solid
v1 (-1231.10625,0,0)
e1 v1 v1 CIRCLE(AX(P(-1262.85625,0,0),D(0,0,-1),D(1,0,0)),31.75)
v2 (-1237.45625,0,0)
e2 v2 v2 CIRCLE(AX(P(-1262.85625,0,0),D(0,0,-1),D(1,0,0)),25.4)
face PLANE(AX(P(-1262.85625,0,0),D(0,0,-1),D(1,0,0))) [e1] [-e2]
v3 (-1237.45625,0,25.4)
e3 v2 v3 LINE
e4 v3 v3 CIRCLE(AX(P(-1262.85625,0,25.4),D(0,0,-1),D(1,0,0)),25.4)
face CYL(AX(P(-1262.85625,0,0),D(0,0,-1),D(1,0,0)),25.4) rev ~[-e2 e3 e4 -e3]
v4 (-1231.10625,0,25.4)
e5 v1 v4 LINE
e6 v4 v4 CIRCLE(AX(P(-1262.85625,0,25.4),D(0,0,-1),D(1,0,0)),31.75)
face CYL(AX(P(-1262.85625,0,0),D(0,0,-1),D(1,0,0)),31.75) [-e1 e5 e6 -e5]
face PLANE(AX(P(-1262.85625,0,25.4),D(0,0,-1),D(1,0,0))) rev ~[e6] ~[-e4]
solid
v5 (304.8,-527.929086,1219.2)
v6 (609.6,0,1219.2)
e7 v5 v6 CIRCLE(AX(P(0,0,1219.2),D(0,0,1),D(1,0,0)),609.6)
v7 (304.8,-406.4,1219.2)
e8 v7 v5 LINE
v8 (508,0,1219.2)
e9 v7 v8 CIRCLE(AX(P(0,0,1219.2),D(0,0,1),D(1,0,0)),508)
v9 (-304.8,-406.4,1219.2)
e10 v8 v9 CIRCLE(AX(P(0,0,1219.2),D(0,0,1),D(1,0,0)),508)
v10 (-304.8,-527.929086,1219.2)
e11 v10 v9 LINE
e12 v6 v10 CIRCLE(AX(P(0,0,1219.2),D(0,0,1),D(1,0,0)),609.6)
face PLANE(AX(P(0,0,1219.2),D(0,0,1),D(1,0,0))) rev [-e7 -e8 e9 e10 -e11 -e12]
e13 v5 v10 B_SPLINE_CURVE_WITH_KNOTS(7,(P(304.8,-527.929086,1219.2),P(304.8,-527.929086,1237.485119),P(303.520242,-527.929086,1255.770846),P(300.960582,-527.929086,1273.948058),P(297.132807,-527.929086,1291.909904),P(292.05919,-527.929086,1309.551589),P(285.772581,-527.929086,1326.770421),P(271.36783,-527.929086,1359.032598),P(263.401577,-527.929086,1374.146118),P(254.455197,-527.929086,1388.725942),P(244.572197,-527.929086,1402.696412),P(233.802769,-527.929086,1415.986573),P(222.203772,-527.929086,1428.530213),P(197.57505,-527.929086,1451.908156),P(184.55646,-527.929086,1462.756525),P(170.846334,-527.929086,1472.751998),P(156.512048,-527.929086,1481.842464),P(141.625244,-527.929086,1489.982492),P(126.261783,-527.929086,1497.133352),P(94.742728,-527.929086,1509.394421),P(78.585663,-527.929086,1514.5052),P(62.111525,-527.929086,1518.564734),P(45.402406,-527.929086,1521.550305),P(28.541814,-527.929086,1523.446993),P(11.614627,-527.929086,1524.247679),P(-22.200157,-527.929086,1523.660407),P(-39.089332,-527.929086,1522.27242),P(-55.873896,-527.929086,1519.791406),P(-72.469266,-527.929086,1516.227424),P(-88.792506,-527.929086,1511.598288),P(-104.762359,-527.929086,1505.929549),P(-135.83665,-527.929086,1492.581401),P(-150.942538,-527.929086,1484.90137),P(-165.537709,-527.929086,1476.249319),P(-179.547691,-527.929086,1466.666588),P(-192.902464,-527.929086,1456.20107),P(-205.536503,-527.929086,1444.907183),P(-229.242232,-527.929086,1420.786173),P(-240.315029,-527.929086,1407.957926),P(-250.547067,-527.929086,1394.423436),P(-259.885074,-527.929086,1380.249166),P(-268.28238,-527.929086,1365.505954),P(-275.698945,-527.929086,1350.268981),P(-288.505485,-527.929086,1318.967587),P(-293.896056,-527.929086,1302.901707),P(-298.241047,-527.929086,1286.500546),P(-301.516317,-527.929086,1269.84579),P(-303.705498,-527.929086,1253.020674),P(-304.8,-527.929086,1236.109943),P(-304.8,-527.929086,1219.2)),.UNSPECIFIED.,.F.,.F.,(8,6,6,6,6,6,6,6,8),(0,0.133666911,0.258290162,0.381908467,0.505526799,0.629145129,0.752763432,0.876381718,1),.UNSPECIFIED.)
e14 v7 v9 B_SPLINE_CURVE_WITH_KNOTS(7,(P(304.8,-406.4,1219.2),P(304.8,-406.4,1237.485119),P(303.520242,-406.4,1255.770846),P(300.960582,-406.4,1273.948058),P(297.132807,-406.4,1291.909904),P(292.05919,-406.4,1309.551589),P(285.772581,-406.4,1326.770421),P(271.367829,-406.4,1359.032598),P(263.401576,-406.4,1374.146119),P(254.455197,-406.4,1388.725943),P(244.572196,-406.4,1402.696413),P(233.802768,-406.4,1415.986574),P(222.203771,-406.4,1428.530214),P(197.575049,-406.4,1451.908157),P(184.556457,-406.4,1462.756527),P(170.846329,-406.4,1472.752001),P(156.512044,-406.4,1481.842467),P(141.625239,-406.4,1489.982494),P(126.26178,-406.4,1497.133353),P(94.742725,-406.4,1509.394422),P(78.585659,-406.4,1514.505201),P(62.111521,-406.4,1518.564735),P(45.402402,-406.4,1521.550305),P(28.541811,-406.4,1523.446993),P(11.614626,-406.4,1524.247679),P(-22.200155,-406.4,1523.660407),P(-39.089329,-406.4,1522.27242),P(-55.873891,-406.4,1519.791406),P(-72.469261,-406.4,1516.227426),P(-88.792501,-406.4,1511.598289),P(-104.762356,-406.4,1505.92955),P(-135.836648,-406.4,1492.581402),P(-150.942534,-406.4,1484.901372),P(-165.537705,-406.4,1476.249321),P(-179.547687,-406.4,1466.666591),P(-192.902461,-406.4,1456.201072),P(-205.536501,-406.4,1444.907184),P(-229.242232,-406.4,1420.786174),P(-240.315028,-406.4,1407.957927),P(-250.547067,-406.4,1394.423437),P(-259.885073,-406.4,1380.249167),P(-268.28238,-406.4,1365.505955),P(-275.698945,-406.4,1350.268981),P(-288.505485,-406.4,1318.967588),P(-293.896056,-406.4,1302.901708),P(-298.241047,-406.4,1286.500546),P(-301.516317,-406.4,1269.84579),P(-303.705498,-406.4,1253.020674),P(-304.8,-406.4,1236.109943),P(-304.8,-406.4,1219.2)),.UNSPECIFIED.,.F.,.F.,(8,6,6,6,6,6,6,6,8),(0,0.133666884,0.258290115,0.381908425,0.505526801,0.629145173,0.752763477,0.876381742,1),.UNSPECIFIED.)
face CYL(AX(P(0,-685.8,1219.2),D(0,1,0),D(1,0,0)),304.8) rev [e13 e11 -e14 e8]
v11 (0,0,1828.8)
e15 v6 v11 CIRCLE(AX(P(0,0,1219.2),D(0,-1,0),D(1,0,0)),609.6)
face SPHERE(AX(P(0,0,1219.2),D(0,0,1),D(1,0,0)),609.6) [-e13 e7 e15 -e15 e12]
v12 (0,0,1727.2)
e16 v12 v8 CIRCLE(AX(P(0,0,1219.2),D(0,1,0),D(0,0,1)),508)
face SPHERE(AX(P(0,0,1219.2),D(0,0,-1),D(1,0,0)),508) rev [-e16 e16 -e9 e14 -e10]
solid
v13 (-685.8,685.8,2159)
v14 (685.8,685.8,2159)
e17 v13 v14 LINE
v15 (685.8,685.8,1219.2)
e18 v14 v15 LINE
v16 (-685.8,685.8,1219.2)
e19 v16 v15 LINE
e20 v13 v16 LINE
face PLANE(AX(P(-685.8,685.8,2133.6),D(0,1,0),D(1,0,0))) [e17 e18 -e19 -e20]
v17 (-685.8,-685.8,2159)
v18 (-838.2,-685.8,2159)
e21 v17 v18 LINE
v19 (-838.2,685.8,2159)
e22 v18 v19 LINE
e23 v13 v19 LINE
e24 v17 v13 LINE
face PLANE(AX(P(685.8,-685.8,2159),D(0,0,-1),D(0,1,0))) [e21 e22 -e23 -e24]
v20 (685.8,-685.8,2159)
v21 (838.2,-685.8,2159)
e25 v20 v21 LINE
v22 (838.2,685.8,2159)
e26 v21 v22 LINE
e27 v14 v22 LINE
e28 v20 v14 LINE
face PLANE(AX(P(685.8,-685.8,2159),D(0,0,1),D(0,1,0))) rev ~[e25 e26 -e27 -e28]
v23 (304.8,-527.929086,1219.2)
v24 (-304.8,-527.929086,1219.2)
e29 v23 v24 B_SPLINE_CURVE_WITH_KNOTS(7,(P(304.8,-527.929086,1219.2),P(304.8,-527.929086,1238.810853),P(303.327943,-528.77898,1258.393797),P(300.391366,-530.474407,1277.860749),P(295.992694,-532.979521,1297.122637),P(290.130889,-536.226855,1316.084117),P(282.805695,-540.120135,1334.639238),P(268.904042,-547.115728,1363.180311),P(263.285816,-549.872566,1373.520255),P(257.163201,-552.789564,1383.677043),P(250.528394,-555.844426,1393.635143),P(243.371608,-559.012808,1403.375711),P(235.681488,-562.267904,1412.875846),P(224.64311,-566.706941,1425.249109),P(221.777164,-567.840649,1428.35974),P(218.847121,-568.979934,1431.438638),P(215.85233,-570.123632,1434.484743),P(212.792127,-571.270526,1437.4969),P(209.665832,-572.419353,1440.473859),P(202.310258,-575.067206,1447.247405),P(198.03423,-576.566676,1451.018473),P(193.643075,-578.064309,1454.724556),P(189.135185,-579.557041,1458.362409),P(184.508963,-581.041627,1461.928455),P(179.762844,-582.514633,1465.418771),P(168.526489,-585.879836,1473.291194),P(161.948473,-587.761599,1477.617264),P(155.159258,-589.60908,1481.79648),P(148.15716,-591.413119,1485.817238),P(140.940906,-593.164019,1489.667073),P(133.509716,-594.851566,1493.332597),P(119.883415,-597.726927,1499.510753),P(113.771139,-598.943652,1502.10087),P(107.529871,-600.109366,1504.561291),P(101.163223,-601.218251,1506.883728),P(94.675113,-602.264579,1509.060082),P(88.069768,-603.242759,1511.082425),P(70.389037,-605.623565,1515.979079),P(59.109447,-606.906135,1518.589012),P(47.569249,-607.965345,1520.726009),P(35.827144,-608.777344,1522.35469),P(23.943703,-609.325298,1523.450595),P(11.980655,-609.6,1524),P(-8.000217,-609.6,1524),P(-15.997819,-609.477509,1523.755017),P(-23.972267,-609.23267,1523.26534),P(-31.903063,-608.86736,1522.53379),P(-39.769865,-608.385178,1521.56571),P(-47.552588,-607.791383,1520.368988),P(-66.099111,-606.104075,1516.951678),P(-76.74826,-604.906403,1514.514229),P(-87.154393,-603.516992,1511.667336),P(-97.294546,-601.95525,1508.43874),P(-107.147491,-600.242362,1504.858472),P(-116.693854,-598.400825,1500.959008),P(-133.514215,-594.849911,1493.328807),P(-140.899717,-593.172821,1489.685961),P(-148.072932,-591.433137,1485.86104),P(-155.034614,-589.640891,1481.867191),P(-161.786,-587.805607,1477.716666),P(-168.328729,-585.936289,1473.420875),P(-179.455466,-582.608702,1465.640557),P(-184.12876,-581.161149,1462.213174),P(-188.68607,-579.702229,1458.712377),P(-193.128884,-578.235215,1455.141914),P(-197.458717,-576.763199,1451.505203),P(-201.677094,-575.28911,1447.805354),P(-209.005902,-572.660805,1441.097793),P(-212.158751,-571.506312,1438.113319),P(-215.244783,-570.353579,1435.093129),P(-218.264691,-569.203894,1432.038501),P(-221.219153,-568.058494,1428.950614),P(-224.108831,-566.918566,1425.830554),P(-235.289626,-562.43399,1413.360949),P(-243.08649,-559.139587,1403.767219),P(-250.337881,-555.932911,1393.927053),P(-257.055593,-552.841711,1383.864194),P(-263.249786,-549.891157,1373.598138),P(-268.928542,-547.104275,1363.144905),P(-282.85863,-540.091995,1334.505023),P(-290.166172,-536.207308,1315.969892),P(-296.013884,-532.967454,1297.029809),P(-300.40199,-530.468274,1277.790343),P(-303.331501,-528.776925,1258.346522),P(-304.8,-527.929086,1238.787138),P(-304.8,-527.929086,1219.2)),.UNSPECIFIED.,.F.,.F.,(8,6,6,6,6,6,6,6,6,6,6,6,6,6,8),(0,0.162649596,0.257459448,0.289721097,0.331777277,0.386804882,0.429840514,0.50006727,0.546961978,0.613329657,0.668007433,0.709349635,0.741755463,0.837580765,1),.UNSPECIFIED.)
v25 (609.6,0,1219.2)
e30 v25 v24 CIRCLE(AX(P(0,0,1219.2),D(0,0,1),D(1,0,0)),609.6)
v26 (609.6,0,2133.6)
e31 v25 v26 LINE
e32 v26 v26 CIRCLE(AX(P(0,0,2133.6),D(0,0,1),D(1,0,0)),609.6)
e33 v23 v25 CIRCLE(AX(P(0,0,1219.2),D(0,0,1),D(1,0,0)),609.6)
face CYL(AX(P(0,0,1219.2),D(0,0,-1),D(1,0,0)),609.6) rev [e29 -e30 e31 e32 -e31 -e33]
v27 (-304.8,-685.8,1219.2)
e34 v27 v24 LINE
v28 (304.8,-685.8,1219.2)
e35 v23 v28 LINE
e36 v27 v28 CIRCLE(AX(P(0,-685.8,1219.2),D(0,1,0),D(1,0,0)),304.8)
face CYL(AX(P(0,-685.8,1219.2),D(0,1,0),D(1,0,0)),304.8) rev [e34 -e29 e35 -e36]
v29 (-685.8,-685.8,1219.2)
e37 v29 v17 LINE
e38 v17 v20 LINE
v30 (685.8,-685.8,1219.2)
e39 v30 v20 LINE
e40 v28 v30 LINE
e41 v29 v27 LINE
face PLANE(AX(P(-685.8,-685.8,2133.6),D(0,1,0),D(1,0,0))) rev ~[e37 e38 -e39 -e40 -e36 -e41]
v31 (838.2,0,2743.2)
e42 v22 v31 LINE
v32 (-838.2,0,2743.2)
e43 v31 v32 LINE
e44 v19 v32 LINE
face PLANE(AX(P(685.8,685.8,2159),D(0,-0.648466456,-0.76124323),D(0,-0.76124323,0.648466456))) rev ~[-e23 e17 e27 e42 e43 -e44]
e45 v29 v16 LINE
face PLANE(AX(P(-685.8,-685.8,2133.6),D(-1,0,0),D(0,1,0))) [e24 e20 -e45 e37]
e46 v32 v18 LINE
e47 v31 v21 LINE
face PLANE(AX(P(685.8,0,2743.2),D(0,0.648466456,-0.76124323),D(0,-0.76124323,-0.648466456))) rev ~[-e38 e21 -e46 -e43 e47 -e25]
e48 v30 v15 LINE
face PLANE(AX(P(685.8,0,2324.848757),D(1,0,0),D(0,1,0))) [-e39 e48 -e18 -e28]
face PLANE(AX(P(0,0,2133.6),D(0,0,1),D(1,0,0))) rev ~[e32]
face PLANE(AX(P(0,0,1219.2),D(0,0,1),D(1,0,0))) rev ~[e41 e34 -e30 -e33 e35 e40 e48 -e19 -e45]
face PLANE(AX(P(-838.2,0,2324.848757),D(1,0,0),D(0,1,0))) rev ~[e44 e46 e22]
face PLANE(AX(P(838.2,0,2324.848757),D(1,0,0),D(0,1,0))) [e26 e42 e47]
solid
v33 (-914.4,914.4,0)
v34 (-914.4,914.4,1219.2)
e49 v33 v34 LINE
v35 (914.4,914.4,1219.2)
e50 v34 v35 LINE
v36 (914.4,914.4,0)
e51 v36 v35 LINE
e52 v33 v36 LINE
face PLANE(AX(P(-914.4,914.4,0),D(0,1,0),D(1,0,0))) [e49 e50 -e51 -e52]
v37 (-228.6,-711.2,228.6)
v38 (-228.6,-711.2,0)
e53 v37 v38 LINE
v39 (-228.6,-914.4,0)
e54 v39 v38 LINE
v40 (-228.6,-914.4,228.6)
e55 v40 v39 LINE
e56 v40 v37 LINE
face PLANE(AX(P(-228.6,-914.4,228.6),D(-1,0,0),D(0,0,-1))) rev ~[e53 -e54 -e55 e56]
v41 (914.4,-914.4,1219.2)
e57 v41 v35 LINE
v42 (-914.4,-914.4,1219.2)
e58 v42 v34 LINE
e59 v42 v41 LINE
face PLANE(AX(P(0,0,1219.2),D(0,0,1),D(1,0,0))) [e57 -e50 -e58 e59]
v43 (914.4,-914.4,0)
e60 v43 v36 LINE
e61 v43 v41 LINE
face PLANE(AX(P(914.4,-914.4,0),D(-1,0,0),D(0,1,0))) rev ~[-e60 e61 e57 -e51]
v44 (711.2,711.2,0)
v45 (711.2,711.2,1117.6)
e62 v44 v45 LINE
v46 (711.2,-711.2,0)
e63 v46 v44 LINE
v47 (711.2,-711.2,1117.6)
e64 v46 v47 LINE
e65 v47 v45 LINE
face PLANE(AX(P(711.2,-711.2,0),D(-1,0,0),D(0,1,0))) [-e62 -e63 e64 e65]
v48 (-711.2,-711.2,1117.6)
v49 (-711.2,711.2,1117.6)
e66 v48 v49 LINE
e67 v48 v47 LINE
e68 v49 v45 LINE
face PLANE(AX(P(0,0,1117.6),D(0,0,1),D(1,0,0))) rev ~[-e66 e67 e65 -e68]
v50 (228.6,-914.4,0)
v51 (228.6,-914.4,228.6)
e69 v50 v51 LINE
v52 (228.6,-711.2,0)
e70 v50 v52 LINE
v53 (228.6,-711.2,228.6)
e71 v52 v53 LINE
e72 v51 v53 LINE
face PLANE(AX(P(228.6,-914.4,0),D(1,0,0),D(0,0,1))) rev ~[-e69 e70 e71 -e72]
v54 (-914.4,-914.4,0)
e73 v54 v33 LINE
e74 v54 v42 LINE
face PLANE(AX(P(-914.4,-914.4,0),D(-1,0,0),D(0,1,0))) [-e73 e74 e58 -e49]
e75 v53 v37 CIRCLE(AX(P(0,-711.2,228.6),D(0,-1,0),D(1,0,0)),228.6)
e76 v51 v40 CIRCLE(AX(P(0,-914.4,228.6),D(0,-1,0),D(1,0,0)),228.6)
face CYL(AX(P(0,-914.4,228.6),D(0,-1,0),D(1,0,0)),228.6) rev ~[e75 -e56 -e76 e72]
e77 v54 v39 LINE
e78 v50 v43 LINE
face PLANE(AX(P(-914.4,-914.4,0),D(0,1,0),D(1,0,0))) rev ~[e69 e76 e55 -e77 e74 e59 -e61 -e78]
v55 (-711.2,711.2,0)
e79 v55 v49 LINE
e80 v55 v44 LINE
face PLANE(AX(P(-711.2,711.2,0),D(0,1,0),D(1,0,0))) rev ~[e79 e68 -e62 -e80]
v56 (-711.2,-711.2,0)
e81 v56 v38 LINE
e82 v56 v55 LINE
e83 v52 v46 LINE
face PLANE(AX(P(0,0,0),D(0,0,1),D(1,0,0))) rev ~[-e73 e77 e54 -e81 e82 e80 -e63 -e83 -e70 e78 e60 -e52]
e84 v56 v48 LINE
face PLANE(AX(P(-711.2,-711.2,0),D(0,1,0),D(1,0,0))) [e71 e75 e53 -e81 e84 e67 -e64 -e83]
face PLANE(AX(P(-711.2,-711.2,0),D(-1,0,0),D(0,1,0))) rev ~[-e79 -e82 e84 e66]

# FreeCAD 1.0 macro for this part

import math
import FreeCAD as App
import Part
import Sketcher
from FreeCAD import Vector
Q = App.Units.Quantity


def add_polygon(sketch, points):
    """Adds a closed chain of lines whose ends are joined by coincident constraints."""
    first, n = sketch.GeometryCount, len(points)
    for a, b in zip(points, points[1:] + points[:1]):
        sketch.addGeometry(Part.LineSegment(App.Vector(*a, 0), App.Vector(*b, 0)), False)
    for i in range(n):
        sketch.addConstraint(Sketcher.Constraint("Coincident", first + i, 2, first + (i + 1) % n, 1))

doc = App.newDocument("Part")
body = doc.addObject("PartDesign::Body", "Body")

sketch1 = doc.addObject("Sketcher::SketchObject", "Sketch")
body.addObject(sketch1)
sketch1.AttachmentSupport = (doc.XY_Plane, [""])
sketch1.MapMode = "FlatFace"
add_polygon(sketch1, [(-914, 914), (-914, -914), (914, -914), (914, 914)])
add_polygon(sketch1, [(711, -711), (-711, -711), (-711, 711), (711, 711)])
sketch1.addConstraint([
    Sketcher.Constraint("Vertical", 0),
    Sketcher.Constraint("Horizontal", 1),
    Sketcher.Constraint("Vertical", 2),
    Sketcher.Constraint("Horizontal", 3),
    Sketcher.Constraint("Horizontal", 4),
    Sketcher.Constraint("Vertical", 5),
    Sketcher.Constraint("Horizontal", 6),
    Sketcher.Constraint("Vertical", 7),
    Sketcher.Constraint("Symmetric", 0, 2, 2, 2, -1, 1),
    Sketcher.Constraint("Symmetric", 4, 2, 6, 2, -1, 1),
    Sketcher.Constraint("Equal", 3, 0),
    Sketcher.Constraint("Equal", 6, 5),
    Sketcher.Constraint("DistanceX", 1, 1, 1, 2, Q("72 in")),
    Sketcher.Constraint("DistanceX", 4, 2, 4, 1, Q("56 in")),
])
pad1 = doc.addObject("PartDesign::Pad", "Pad")
body.addObject(pad1)
pad1.Profile = sketch1
pad1.Length = Q("48 in")

sketch2 = doc.addObject("Sketcher::SketchObject", "Sketch001")
body.addObject(sketch2)
sketch2.AttachmentSupport = (doc.XY_Plane, [""])
sketch2.MapMode = "FlatFace"
sketch2.AttachmentOffset = App.Placement(Vector(0, 0, 48 * 25.4), App.Rotation())
add_polygon(sketch2, [(-711, 711), (-711, -711), (711, -711), (711, 711)])
sketch2.addConstraint([
    Sketcher.Constraint("Vertical", 0),
    Sketcher.Constraint("Horizontal", 1),
    Sketcher.Constraint("Vertical", 2),
    Sketcher.Constraint("Horizontal", 3),
    Sketcher.Constraint("Symmetric", 0, 2, 2, 2, -1, 1),
    Sketcher.Constraint("Equal", 3, 0),
    Sketcher.Constraint("DistanceX", 1, 1, 1, 2, Q("56 in")),
])
pad2 = doc.addObject("PartDesign::Pad", "Pad001")
body.addObject(pad2)
pad2.Profile = sketch2
pad2.Length = Q("4 in")
pad2.Reversed = True

sketch3 = doc.addObject("Sketcher::SketchObject", "Sketch002")
body.addObject(sketch3)
sketch3.AttachmentSupport = (doc.XZ_Plane, [""])
sketch3.MapMode = "FlatFace"
sketch3.AttachmentOffset = App.Placement(Vector(0, 0, 36 * 25.4), App.Rotation())
sketch3.addGeometry([
    Part.LineSegment(Vector(229, 0, 0), Vector(229, 229, 0)),
    Part.ArcOfCircle(Part.Circle(Vector(0, 229, 0), Vector(0, 0, 1), 229), math.radians(0), math.radians(180)),
    Part.LineSegment(Vector(-229, 229, 0), Vector(-229, 0, 0)),
    Part.LineSegment(Vector(-229, 0, 0), Vector(229, 0, 0)),
], False)
sketch3.addConstraint([
    Sketcher.Constraint("Tangent", 0, 2, 1, 1),
    Sketcher.Constraint("Tangent", 1, 2, 2, 1),
    Sketcher.Constraint("Coincident", 2, 2, 3, 1),
    Sketcher.Constraint("Coincident", 3, 2, 0, 1),
    Sketcher.Constraint("Vertical", 0),
    Sketcher.Constraint("Vertical", 2),
    Sketcher.Constraint("Horizontal", 3),
    Sketcher.Constraint("Symmetric", 2, 2, 3, 2, -1, 1),
    Sketcher.Constraint("Radius", 1, Q("9 in")),
    Sketcher.Constraint("DistanceY", 0, 1, 0, 2, Q("9 in")),
])
pocket1 = doc.addObject("PartDesign::Pocket", "Pocket")
body.addObject(pocket1)
pocket1.Profile = sketch3
pocket1.Length = Q("8 in")
body2 = doc.addObject("PartDesign::Body", "Body001")

sketch4 = doc.addObject("Sketcher::SketchObject", "Sketch003")
body2.addObject(sketch4)
sketch4.AttachmentSupport = (doc.getObject("XZ_Plane001"), [""])
sketch4.MapMode = "FlatFace"
sketch4.addGeometry([
    Part.LineSegment(Vector(508, 1219, 0), Vector(610, 1219, 0)),
    Part.ArcOfCircle(Part.Circle(Vector(0, 1219, 0), Vector(0, 0, 1), 610), math.radians(0), math.radians(90)),
    Part.LineSegment(Vector(0, 1829, 0), Vector(0, 1727, 0)),
    Part.ArcOfCircle(Part.Circle(Vector(0, 1219, 0), Vector(0, 0, 1), 508), math.radians(0), math.radians(90)),
], False)
sketch4.addConstraint([
    Sketcher.Constraint("Coincident", 0, 2, 1, 1),
    Sketcher.Constraint("Coincident", 1, 2, 2, 1),
    Sketcher.Constraint("Coincident", 2, 2, 3, 2),
    Sketcher.Constraint("Coincident", 3, 1, 0, 1),
    Sketcher.Constraint("Horizontal", 0),
    Sketcher.Constraint("Vertical", 2),
    Sketcher.Constraint("Coincident", 3, 3, 1, 3),
    Sketcher.Constraint("PointOnObject", 1, 3, -2),
    Sketcher.Constraint("PointOnObject", 2, 2, -2),
    Sketcher.Constraint("Horizontal", 3, 3, 0, 2),
    Sketcher.Constraint("Radius", 1, Q("24 in")),
    Sketcher.Constraint("Radius", 3, Q("20 in")),
    Sketcher.Constraint("DistanceY", -1, 1, 1, 3, Q("48 in")),
])
revolution = doc.addObject("PartDesign::Revolution", "Revolution")
body2.addObject(revolution)
revolution.Profile = sketch4
revolution.ReferenceAxis = (sketch4, ["V_Axis"])
revolution.Angle = 360
body3 = doc.addObject("PartDesign::Body", "Body002")

sketch5 = doc.addObject("Sketcher::SketchObject", "Sketch004")
body3.addObject(sketch5)
sketch5.AttachmentSupport = (doc.getObject("XY_Plane002"), [""])
sketch5.MapMode = "FlatFace"
sketch5.AttachmentOffset = App.Placement(Vector(0, 0, 48 * 25.4), App.Rotation())
add_polygon(sketch5, [(-686, 686), (-686, -686), (686, -686), (686, 686)])
sketch5.addGeometry(Part.Circle(Vector(0, 0, 0), Vector(0, 0, 1), 610), False)
sketch5.addConstraint([
    Sketcher.Constraint("Vertical", 0),
    Sketcher.Constraint("Horizontal", 1),
    Sketcher.Constraint("Vertical", 2),
    Sketcher.Constraint("Horizontal", 3),
    Sketcher.Constraint("Coincident", 4, 3, -1, 1),
    Sketcher.Constraint("Symmetric", 0, 2, 2, 2, -1, 1),
    Sketcher.Constraint("Equal", 3, 0),
    Sketcher.Constraint("Diameter", 4, Q("48 in")),
    Sketcher.Constraint("DistanceX", 1, 1, 1, 2, Q("54 in")),
])
pad3 = doc.addObject("PartDesign::Pad", "Pad002")
body3.addObject(pad3)
pad3.Profile = sketch5
pad3.Length = Q("36 in")

sketch6 = doc.addObject("Sketcher::SketchObject", "Sketch005")
body3.addObject(sketch6)
sketch6.AttachmentSupport = (doc.getObject("XY_Plane002"), [""])
sketch6.MapMode = "FlatFace"
sketch6.AttachmentOffset = App.Placement(Vector(0, 0, 84 * 25.4), App.Rotation())
add_polygon(sketch6, [(-686, 686), (-686, -686), (686, -686), (686, 686)])
sketch6.addConstraint([
    Sketcher.Constraint("Vertical", 0),
    Sketcher.Constraint("Horizontal", 1),
    Sketcher.Constraint("Vertical", 2),
    Sketcher.Constraint("Horizontal", 3),
    Sketcher.Constraint("Symmetric", 0, 2, 2, 2, -1, 1),
    Sketcher.Constraint("Equal", 3, 0),
    Sketcher.Constraint("DistanceX", 1, 1, 1, 2, Q("54 in")),
])
pad4 = doc.addObject("PartDesign::Pad", "Pad003")
body3.addObject(pad4)
pad4.Profile = sketch6
pad4.Length = Q("1 in")

sketch7 = doc.addObject("Sketcher::SketchObject", "Sketch006")
body3.addObject(sketch7)
sketch7.AttachmentSupport = (doc.getObject("YZ_Plane002"), [""])
sketch7.MapMode = "FlatFace"
sketch7.AttachmentOffset = App.Placement(Vector(0, 0, 27 * 25.4), App.Rotation())
add_polygon(sketch7, [(0, 2743), (-686, 2159), (686, 2159)])
sketch7.addConstraint([
    Sketcher.Constraint("Horizontal", 1),
    Sketcher.Constraint("PointOnObject", 2, 2, -2),
    Sketcher.Constraint("Equal", 0, 2),
    Sketcher.Constraint("DistanceX", 1, 1, 1, 2, Q("54 in")),
    Sketcher.Constraint("DistanceY", -1, 1, 0, 2, Q("85 in")),
    Sketcher.Constraint("DistanceY", -1, 1, 2, 2, Q("108 in")),
])
pad5 = doc.addObject("PartDesign::Pad", "Pad004")
body3.addObject(pad5)
pad5.Profile = sketch7
pad5.Type = "TwoLengths"
pad5.Length = Q("60 in")
pad5.Length2 = Q("6 in")
pad5.Reversed = True
body4 = doc.addObject("PartDesign::Body", "Body003")

sketch8 = doc.addObject("Sketcher::SketchObject", "Sketch007")
body4.addObject(sketch8)
sketch8.AttachmentSupport = (doc.getObject("XZ_Plane003"), [""])
sketch8.MapMode = "FlatFace"
sketch8.AttachmentOffset = App.Placement(Vector(0, 0, 27 * 25.4), App.Rotation())
sketch8.addGeometry([
    Part.LineSegment(Vector(-305, 1219, 0), Vector(305, 1219, 0)),
    Part.ArcOfCircle(Part.Circle(Vector(0, 1219, 0), Vector(0, 0, 1), 305), math.radians(0), math.radians(180)),
], False)
sketch8.addConstraint([
    Sketcher.Constraint("Coincident", 0, 1, 1, 2),
    Sketcher.Constraint("Coincident", 1, 1, 0, 2),
    Sketcher.Constraint("Horizontal", 0),
    Sketcher.Constraint("PointOnObject", 1, 3, -2),
    Sketcher.Constraint("Horizontal", 1, 3, 0, 1),
    Sketcher.Constraint("Radius", 1, Q("12 in")),
    Sketcher.Constraint("DistanceY", -1, 1, 1, 3, Q("48 in")),
])
pad6 = doc.addObject("PartDesign::Pad", "Pad005")
body4.addObject(pad6)
pad6.Profile = sketch8
pad6.Type = "TwoLengths"
pad6.Length = Q("12 in")
pad6.Length2 = 228.601
pad6.Reversed = True
doc.recompute()

body5 = doc.addObject("PartDesign::Body", "Body004")
body5.BaseFeature = body4
boolean = doc.addObject("PartDesign::Boolean", "Boolean")
body2.addObject(boolean)
boolean.Type = "Cut"
boolean.addObjects([body5])
doc.recompute()

boolean2 = doc.addObject("PartDesign::Boolean", "Boolean001")
body3.addObject(boolean2)
boolean2.Type = "Cut"
boolean2.addObjects([body4])
body6 = doc.addObject("PartDesign::Body", "Body005")

sketch9 = doc.addObject("Sketcher::SketchObject", "Sketch008")
body6.addObject(sketch9)
sketch9.AttachmentSupport = (doc.getObject("XY_Plane005"), [""])
sketch9.MapMode = "FlatFace"
sketch9.addGeometry([
    Part.Circle(Vector(-1263, 0, 0), Vector(0, 0, 1), 32),
    Part.Circle(Vector(-1263, 0, 0), Vector(0, 0, 1), 25),
], False)
sketch9.addConstraint([
    Sketcher.Constraint("Coincident", 1, 3, 0, 3),
    Sketcher.Constraint("PointOnObject", 0, 3, -1),
    Sketcher.Constraint("Diameter", 1, Q("2 in")),
    Sketcher.Constraint("Diameter", 0, Q("2.5 in")),
    Sketcher.Constraint("DistanceX", 0, 3, -1, 1, Q("49.71875 in")),
])
pad7 = doc.addObject("PartDesign::Pad", "Pad006")
body6.addObject(pad7)
pad7.Profile = sketch9
pad7.Length = Q("1 in")

doc.recompute()
